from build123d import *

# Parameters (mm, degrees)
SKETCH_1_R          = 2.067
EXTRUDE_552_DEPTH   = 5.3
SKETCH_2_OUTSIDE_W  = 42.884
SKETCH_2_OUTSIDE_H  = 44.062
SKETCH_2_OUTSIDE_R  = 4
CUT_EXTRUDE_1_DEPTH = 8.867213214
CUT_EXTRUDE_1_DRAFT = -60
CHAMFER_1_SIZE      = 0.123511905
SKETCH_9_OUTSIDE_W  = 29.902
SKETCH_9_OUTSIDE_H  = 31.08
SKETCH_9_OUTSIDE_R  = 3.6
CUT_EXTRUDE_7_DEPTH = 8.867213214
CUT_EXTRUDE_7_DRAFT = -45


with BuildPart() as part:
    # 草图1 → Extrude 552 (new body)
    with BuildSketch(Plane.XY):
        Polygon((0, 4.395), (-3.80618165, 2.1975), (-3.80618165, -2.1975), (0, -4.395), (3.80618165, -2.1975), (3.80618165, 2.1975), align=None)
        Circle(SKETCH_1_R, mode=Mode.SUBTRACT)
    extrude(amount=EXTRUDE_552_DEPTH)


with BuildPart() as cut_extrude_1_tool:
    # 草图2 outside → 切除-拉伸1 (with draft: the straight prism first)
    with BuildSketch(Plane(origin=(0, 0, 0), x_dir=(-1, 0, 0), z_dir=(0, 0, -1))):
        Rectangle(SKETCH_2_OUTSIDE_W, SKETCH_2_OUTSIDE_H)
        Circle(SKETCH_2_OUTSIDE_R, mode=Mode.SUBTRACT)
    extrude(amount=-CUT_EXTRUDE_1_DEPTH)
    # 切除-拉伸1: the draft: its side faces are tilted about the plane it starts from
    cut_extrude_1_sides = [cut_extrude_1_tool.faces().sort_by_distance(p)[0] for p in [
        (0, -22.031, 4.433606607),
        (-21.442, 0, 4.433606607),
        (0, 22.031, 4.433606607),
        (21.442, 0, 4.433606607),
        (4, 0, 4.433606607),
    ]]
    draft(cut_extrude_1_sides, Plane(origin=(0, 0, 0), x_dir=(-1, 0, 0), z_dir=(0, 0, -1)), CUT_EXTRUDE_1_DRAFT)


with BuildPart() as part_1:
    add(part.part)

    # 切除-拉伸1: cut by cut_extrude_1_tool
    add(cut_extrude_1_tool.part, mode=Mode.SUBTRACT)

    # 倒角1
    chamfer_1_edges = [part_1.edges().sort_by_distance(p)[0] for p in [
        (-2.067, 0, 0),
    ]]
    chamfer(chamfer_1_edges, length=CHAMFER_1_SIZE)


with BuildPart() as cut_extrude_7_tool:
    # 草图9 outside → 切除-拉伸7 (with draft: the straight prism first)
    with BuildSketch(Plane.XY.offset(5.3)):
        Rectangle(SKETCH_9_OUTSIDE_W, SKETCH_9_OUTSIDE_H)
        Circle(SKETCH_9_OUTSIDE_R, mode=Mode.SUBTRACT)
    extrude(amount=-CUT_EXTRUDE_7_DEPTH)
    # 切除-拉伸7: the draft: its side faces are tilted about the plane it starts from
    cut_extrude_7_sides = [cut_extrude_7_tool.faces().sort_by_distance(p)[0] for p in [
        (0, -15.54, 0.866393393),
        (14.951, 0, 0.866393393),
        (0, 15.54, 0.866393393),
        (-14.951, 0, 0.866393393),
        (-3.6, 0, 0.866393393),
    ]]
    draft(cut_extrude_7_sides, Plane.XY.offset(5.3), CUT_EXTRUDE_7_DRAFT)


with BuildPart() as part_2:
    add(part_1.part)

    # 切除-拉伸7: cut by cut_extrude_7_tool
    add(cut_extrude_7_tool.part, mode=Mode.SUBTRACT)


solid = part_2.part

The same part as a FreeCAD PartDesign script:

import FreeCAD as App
import Part
import Sketcher

V = App.Vector
Q = App.Units.Quantity


def edges_at(feature, points):
    """Names of the edges that pass closest to the given points."""
    edges = feature.Shape.Edges
    near = lambda p: min(range(len(edges)), key=lambda i: edges[i].distToShape(Part.Vertex(*p))[0])
    return sorted({f"Edge{near(p) + 1}" for p in points})


def faces_at(feature, points):
    """Names of the faces that lie closest to the given points."""
    faces = feature.Shape.Faces
    near = lambda p: min(range(len(faces)), key=lambda i: faces[i].distToShape(Part.Vertex(*p))[0])
    return sorted({f"Face{near(p) + 1}" for p in points})


def add_polygon(sketch, points):
    """Adds a closed chain of lines whose ends are joined by coincident constraints."""
    first, n = sketch.GeometryCount, len(points)
    for a, b in zip(points, points[1:] + points[:1]):
        sketch.addGeometry(Part.LineSegment(App.Vector(*a, 0), App.Vector(*b, 0)), False)
    for i in range(n):
        sketch.addConstraint(Sketcher.Constraint("Coincident", first + i, 2, first + (i + 1) % n, 1))

doc = App.newDocument("Part")
body = doc.addObject("PartDesign::Body", "Body")

# Sketch on XY plane
sketch1 = body.newObject("Sketcher::SketchObject", "Sketch")
sketch1.AttachmentSupport = (doc.getObject("XY_Plane"), [""])
sketch1.MapMode = "FlatFace"
add_polygon(sketch1, [(0, 4.395), (-3.806182, 2.1975), (-3.806182, -2.1975), (0, -4.395), (3.806182, -2.1975), (3.806182, 2.1975)])  # lines 0-5
sketch1.addGeometry(Part.Circle(V(0, 0, 0), V(0, 0, 1), 2.067), False)  # 6
sketch1.addConstraint(Sketcher.Constraint("Vertical", 1))
sketch1.addConstraint(Sketcher.Constraint("Vertical", 4))
sketch1.addConstraint(Sketcher.Constraint("Coincident", 6, 3, -1, 1))
sketch1.addConstraint(Sketcher.Constraint("Symmetric", 0, 2, 3, 2, -1, 1))
sketch1.addConstraint(Sketcher.Constraint("Symmetric", 2, 2, 5, 2, -1, 1))
sketch1.addConstraint(Sketcher.Constraint("PointOnObject", 2, 2, -2))
sketch1.addConstraint(Sketcher.Constraint("Parallel", 2, 5))
sketch1.addConstraint(Sketcher.Constraint("Horizontal", 1, 2, 3, 2))
sketch1.addConstraint(Sketcher.Constraint("Angle", 0, Q("-150 deg")))
sketch1.addConstraint(Sketcher.Constraint("Diameter", 6, 4.134))
sketch1.addConstraint(Sketcher.Constraint("DistanceY", 1, 2, 1, 1, 4.395))
sketch1.addConstraint(Sketcher.Constraint("Distance", 0, 4.395))
pad1 = body.newObject("PartDesign::Pad", "Pad")
pad1.Profile = sketch1
pad1.Length = 5.3
body2 = doc.addObject("PartDesign::Body", "Body001")

# Sketch on XY plane
sketch2 = body2.newObject("Sketcher::SketchObject", "Sketch001")
sketch2.AttachmentSupport = (doc.getObject("XY_Plane001"), [""])
sketch2.MapMode = "FlatFace"
add_polygon(sketch2, [(21.442, 22.031), (21.442, -22.031), (-21.442, -22.031), (-21.442, 22.031)])  # lines 0-3
sketch2.addGeometry(Part.Circle(V(0, 0, 0), V(0, 0, 1), 4), False)  # 4
sketch2.addConstraint(Sketcher.Constraint("Vertical", 0))
sketch2.addConstraint(Sketcher.Constraint("Horizontal", 1))
sketch2.addConstraint(Sketcher.Constraint("Vertical", 2))
sketch2.addConstraint(Sketcher.Constraint("Horizontal", 3))
sketch2.addConstraint(Sketcher.Constraint("Coincident", 4, 3, -1, 1))
sketch2.addConstraint(Sketcher.Constraint("Symmetric", 0, 2, 2, 2, -1, 1))
sketch2.addConstraint(Sketcher.Constraint("Diameter", 4, 8.0))
sketch2.addConstraint(Sketcher.Constraint("DistanceX", 1, 2, 1, 1, 42.884))
sketch2.addConstraint(Sketcher.Constraint("DistanceY", 0, 2, 0, 1, 44.062))
pad2 = body2.newObject("PartDesign::Pad", "Pad001")
pad2.Profile = sketch2
pad2.Length = 8.867213
doc.recompute()

draft = body2.newObject("PartDesign::Draft", "Draft")
draft.Base = (pad2, faces_at(pad2, [
    (0, -22.031, 4.434),
    (-21.442, 0, 4.434),
    (0, 22.031, 4.434),
    (21.442, 0, 4.434),
    (4, 0, 4.434),
]))
draft.NeutralPlane = (doc.getObject("XY_Plane001"), [""])
draft.Angle = 60
draft.Reversed = False
doc.recompute()

boolean = body.newObject("PartDesign::Boolean", "Boolean")
boolean.Type = "Cut"
boolean.addObjects([body2])
doc.recompute()

chamfer = body.newObject("PartDesign::Chamfer", "Chamfer")
chamfer.Base = (boolean, edges_at(boolean, [(-2.067, 0, 0)]))
chamfer.Size = 0.123512
body3 = doc.addObject("PartDesign::Body", "Body002")

# Sketch on XY plane
sketch3 = body3.newObject("Sketcher::SketchObject", "Sketch002")
sketch3.AttachmentSupport = (doc.getObject("XY_Plane002"), [""])
sketch3.MapMode = "FlatFace"
sketch3.AttachmentOffset = App.Placement(V(0, 0, 5.3), App.Rotation())
add_polygon(sketch3, [(-14.951, 15.54), (-14.951, -15.54), (14.951, -15.54), (14.951, 15.54)])  # lines 0-3
sketch3.addGeometry(Part.Circle(V(0, 0, 0), V(0, 0, 1), 3.6), False)  # 4
sketch3.addConstraint(Sketcher.Constraint("Vertical", 0))
sketch3.addConstraint(Sketcher.Constraint("Horizontal", 1))
sketch3.addConstraint(Sketcher.Constraint("Vertical", 2))
sketch3.addConstraint(Sketcher.Constraint("Horizontal", 3))
sketch3.addConstraint(Sketcher.Constraint("Coincident", 4, 3, -1, 1))
sketch3.addConstraint(Sketcher.Constraint("Symmetric", 0, 2, 2, 2, -1, 1))
sketch3.addConstraint(Sketcher.Constraint("Diameter", 4, 7.2))
sketch3.addConstraint(Sketcher.Constraint("DistanceY", 0, 2, 0, 1, 31.08))
sketch3.addConstraint(Sketcher.Constraint("DistanceX", 1, 1, 1, 2, 29.902))
pad3 = body3.newObject("PartDesign::Pad", "Pad002")
pad3.Profile = sketch3
pad3.Length = 8.867213
pad3.Reversed = True
doc.recompute()

datumplane = body3.newObject("PartDesign::Plane", "DatumPlane")
datumplane.AttachmentSupport = (doc.getObject("XY_Plane002"), [""])
datumplane.MapMode = "FlatFace"
datumplane.AttachmentOffset = App.Placement(V(0, 0, 5.3), App.Rotation())
draft2 = body3.newObject("PartDesign::Draft", "Draft001")
draft2.Base = (pad3, faces_at(pad3, [
    (0, -15.54, 0.866),
    (14.951, 0, 0.866),
    (0, 15.54, 0.866),
    (-14.951, 0, 0.866),
    (-3.6, 0, 0.866),
]))
draft2.NeutralPlane = (datumplane, [""])
draft2.Angle = 45
draft2.Reversed = True
doc.recompute()

boolean2 = body.newObject("PartDesign::Boolean", "Boolean001")
boolean2.Type = "Cut"
boolean2.addObjects([body3])

doc.recompute()
